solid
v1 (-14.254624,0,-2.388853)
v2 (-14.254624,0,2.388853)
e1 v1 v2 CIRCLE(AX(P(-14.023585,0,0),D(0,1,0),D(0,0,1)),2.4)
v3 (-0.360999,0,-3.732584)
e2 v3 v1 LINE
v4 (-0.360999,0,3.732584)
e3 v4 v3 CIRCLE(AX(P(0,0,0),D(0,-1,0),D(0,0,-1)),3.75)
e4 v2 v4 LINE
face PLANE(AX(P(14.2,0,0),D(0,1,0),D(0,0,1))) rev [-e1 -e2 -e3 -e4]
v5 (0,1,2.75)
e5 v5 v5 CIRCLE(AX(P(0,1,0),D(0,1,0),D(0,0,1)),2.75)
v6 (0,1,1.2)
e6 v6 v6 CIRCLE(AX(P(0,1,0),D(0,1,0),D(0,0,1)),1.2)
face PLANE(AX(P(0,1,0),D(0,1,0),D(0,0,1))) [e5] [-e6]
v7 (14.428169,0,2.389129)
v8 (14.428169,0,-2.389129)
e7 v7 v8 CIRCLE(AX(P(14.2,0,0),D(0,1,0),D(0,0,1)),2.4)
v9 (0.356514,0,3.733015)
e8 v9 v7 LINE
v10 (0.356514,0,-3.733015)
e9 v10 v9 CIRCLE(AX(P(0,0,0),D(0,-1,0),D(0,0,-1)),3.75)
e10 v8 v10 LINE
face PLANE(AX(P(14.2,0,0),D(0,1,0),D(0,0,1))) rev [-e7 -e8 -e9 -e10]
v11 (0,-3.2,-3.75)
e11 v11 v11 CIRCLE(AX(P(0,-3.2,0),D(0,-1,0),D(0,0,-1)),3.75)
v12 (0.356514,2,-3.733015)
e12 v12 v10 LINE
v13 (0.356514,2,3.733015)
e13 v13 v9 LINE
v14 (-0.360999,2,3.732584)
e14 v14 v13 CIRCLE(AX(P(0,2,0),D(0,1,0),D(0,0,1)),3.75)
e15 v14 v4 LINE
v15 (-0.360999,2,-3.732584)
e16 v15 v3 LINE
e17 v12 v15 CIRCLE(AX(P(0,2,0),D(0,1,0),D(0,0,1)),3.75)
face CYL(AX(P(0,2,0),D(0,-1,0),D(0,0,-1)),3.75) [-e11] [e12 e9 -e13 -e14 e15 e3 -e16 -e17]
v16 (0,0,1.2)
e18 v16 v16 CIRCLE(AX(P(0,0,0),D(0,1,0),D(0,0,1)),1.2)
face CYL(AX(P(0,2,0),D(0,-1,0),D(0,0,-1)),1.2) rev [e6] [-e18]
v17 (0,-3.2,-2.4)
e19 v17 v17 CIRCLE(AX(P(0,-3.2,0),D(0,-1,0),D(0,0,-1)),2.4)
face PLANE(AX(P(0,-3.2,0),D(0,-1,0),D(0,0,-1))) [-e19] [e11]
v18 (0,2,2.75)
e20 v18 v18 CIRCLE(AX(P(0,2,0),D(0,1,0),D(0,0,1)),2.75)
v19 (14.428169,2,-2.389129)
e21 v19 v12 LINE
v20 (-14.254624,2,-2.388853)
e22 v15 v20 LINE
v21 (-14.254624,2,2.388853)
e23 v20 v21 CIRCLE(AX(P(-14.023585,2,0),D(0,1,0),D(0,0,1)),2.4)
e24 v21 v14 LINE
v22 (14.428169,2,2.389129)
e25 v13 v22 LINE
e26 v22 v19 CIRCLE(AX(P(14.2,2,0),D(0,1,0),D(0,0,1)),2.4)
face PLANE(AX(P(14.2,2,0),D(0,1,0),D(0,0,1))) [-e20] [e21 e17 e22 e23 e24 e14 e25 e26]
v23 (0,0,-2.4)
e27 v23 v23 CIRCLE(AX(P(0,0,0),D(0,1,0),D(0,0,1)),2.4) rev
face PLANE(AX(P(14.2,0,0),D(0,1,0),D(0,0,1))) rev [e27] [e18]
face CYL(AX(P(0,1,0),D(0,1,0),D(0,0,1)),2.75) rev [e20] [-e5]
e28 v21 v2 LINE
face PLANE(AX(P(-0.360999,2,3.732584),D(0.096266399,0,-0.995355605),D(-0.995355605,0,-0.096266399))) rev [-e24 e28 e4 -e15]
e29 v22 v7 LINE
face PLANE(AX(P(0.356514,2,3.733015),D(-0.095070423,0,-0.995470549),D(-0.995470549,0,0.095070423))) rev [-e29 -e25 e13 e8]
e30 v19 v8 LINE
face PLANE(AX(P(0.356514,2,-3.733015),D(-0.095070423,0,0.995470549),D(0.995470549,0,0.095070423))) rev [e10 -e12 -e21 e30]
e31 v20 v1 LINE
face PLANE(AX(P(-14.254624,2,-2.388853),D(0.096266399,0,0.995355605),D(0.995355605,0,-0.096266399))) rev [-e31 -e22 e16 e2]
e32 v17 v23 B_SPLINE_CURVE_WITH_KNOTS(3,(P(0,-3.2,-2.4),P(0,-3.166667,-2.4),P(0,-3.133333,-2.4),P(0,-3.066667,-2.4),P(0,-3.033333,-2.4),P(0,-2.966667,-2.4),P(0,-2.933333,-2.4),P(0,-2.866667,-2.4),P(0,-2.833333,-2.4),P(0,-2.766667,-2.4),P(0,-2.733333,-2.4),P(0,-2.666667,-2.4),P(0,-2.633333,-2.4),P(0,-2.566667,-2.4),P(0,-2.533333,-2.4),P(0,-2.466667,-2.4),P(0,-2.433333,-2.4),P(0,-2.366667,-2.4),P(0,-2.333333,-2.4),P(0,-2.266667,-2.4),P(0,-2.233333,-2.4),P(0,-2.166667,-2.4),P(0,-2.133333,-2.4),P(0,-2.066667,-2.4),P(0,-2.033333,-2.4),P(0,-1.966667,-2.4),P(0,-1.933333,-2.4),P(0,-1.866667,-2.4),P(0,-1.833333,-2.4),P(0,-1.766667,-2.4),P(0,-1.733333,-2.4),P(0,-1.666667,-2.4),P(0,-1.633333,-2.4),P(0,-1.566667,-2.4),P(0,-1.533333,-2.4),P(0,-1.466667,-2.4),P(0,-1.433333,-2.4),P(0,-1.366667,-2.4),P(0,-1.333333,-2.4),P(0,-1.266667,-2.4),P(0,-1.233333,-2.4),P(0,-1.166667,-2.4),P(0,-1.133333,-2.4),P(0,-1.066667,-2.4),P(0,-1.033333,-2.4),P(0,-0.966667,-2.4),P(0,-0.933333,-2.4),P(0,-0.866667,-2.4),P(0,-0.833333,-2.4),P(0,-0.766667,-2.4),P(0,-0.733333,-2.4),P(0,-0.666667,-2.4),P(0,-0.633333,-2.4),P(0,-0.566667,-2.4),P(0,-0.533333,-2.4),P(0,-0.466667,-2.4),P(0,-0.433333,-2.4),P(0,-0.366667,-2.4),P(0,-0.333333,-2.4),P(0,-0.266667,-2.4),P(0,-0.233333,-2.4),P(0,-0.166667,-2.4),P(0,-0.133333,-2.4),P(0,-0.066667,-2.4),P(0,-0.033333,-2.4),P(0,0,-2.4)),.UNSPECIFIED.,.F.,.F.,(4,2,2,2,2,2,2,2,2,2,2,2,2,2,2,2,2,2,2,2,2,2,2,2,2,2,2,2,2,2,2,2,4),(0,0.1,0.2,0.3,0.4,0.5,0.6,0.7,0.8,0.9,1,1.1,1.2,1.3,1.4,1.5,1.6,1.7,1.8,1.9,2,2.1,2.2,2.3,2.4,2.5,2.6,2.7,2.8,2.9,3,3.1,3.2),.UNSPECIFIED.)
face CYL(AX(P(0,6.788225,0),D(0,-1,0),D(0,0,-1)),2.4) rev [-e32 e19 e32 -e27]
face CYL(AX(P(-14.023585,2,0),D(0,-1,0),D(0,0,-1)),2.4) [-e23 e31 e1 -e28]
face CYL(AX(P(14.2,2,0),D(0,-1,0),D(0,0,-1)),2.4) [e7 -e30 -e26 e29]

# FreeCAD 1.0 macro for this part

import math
import FreeCAD as App
import Part
import Sketcher
Q = App.Units.Quantity

doc = App.newDocument("Part")
body = doc.addObject("PartDesign::Body", "Body")

sketch1 = doc.addObject("Sketcher::SketchObject", "Sketch")
body.addObject(sketch1)
sketch1.AttachmentSupport = (doc.XZ_Plane, [""])
sketch1.MapMode = "FlatFace"
sketch1.addGeometry([
    Part.LineSegment(App.Vector(14.4, -2.4, 0), App.Vector(0.4, -3.7, 0)),
    Part.ArcOfCircle(Part.Circle(App.Vector(0, 0, 0), App.Vector(0, 0, 1), 3.8), math.radians(-95.52), math.radians(-84.54)),
    Part.LineSegment(App.Vector(-0.4, -3.7, 0), App.Vector(-14.3, -2.4, 0)),
    Part.ArcOfCircle(Part.Circle(App.Vector(-14, 0, 0), App.Vector(0, 0, 1), 2.4), math.radians(96), math.radians(264)),
    Part.LineSegment(App.Vector(-14.3, 2.4, 0), App.Vector(-0.4, 3.7, 0)),
    Part.ArcOfCircle(Part.Circle(App.Vector(0, 0, 0), App.Vector(0, 0, 1), 3.8), math.radians(84.54), math.radians(95.52)),
    Part.LineSegment(App.Vector(0.4, 3.7, 0), App.Vector(14.4, 2.4, 0)),
    Part.ArcOfCircle(Part.Circle(App.Vector(14.2, 0, 0), App.Vector(0, 0, 1), 2.4), math.radians(-85), math.radians(85)),
    Part.Circle(App.Vector(0, 0, 0), App.Vector(0, 0, 1), 1.2),
], False)
sketch1.addConstraint([
    Sketcher.Constraint("Tangent", 0, 2, 1, 2),
    Sketcher.Constraint("Tangent", 1, 1, 2, 1),
    Sketcher.Constraint("Tangent", 2, 2, 3, 2),
    Sketcher.Constraint("Tangent", 3, 1, 4, 1),
    Sketcher.Constraint("Tangent", 4, 2, 5, 2),
    Sketcher.Constraint("Tangent", 5, 1, 6, 1),
    Sketcher.Constraint("Tangent", 6, 2, 7, 2),
    Sketcher.Constraint("Tangent", 7, 1, 0, 1),
    Sketcher.Constraint("Coincident", 1, 3, -1, 1),
    Sketcher.Constraint("Coincident", 5, 3, -1, 1),
    Sketcher.Constraint("Coincident", 8, 3, -1, 1),
    Sketcher.Constraint("Equal", 1, 5),
    Sketcher.Constraint("Equal", 3, 7),
    Sketcher.Constraint("PointOnObject", 3, 3, -1),
    Sketcher.Constraint("PointOnObject", 7, 3, -1),
    Sketcher.Constraint("Diameter", 8, Q("2.4 mm")),
    Sketcher.Constraint("Radius", 3, Q("2.4 mm")),
    Sketcher.Constraint("Radius", 1, Q("3.75 mm")),
    Sketcher.Constraint("DistanceX", -1, 1, 7, 3, Q("14.2 mm")),
    Sketcher.Constraint("DistanceX", 1, 1, -1, 1, Q("0.360999 mm")),
])
pad1 = doc.addObject("PartDesign::Pad", "Pad")
body.addObject(pad1)
pad1.Profile = sketch1
pad1.Length = 2
pad1.Reversed = True

sketch2 = doc.addObject("Sketcher::SketchObject", "Sketch001")
body.addObject(sketch2)
sketch2.AttachmentSupport = (doc.XZ_Plane, [""])
sketch2.MapMode = "FlatFace"
sketch2.AttachmentOffset = App.Placement(App.Vector(0, 0, 3.2), App.Rotation())
sketch2.addGeometry([
    Part.ArcOfCircle(Part.Circle(App.Vector(0, 0, 0), App.Vector(0, 0, 1), 3.7), math.radians(0), math.radians(85)),
    Part.ArcOfCircle(Part.Circle(App.Vector(0, 0, 0), App.Vector(0, 0, 1), 3.8), math.radians(84.54), math.radians(95.52)),
    Part.ArcOfCircle(Part.Circle(App.Vector(0, 0, 0), App.Vector(0, 0, 1), 3.8), math.radians(96), math.radians(264)),
    Part.ArcOfCircle(Part.Circle(App.Vector(0, 0, 0), App.Vector(0, 0, 1), 3.8), math.radians(-95.52), math.radians(-84.54)),
    Part.ArcOfCircle(Part.Circle(App.Vector(0, 0, 0), App.Vector(0, 0, 1), 3.7), math.radians(-85), math.radians(0)),
    Part.Circle(App.Vector(0, 0, 0), App.Vector(0, 0, 1), 1.2),
], False)
sketch2.addConstraint([
    Sketcher.Constraint("Tangent", 0, 2, 1, 1),
    Sketcher.Constraint("Tangent", 1, 2, 2, 1),
    Sketcher.Constraint("Tangent", 2, 2, 3, 1),
    Sketcher.Constraint("Tangent", 3, 2, 4, 1),
    Sketcher.Constraint("Tangent", 4, 2, 0, 1),
    Sketcher.Constraint("Coincident", 0, 3, -1, 1),
    Sketcher.Constraint("Coincident", 2, 3, -1, 1),
    Sketcher.Constraint("Coincident", 5, 3, -1, 1),
    Sketcher.Constraint("PointOnObject", 4, 2, -1),
    Sketcher.Constraint("Vertical", 1, 2, 2, 2),
    Sketcher.Constraint("Vertical", 0, 2, 3, 2),
    Sketcher.Constraint("Diameter", 5, Q("2.4 mm")),
    Sketcher.Constraint("Radius", 0, Q("3.75 mm")),
    Sketcher.Constraint("DistanceX", 1, 2, -1, 1, Q("0.360999 mm")),
    Sketcher.Constraint("DistanceY", 1, 2, 0, 2, Q("0.000431 mm")),
])
pad2 = doc.addObject("PartDesign::Pad", "Pad001")
body.addObject(pad2)
pad2.Profile = sketch2
pad2.Length = 3.2
pad2.Reversed = True

sketch3 = doc.addObject("Sketcher::SketchObject", "Sketch002")
body.addObject(sketch3)
sketch3.AttachmentSupport = (doc.XZ_Plane, [""])
sketch3.MapMode = "FlatFace"
sketch3.AttachmentOffset = App.Placement(App.Vector(0, 0, 3.2), App.Rotation())
sketch3.addGeometry(Part.Circle(App.Vector(0, 0, 0), App.Vector(0, 0, 1), 2.4), False)
sketch3.addConstraint([
    Sketcher.Constraint("Coincident", 0, 3, -1, 1),
    Sketcher.Constraint("Diameter", 0, Q("4.8 mm")),
])
pocket1 = doc.addObject("PartDesign::Pocket", "Pocket")
body.addObject(pocket1)
pocket1.Profile = sketch3
pocket1.Length = 3.2

sketch4 = doc.addObject("Sketcher::SketchObject", "Sketch003")
body.addObject(sketch4)
sketch4.AttachmentSupport = (doc.XZ_Plane, [""])
sketch4.MapMode = "FlatFace"
sketch4.AttachmentOffset = App.Placement(App.Vector(0, 0, -2), App.Rotation())
sketch4.addGeometry(Part.Circle(App.Vector(0, 0, 0), App.Vector(0, 0, 1), 2.8), False)
sketch4.addConstraint([
    Sketcher.Constraint("Coincident", 0, 3, -1, 1),
    Sketcher.Constraint("Diameter", 0, Q("5.5 mm")),
])
pocket2 = doc.addObject("PartDesign::Pocket", "Pocket001")
body.addObject(pocket2)
pocket2.Profile = sketch4
pocket2.Length = 1
pocket2.Reversed = True

doc.recompute()
